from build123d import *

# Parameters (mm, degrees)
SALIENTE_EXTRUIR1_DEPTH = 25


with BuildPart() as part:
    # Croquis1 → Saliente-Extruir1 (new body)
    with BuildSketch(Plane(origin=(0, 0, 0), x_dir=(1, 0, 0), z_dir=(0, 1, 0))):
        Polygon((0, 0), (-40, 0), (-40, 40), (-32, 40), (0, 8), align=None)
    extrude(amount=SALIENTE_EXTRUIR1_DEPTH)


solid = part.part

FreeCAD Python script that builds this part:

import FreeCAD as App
import Part
import Sketcher
from FreeCAD import Vector


def add_polygon(sketch, points):
    """Adds a closed chain of lines whose ends are joined by coincident constraints."""
    first, n = sketch.GeometryCount, len(points)
    for a, b in zip(points, points[1:] + points[:1]):
        sketch.addGeometry(Part.LineSegment(App.Vector(*a, 0), App.Vector(*b, 0)), False)
    for i in range(n):
        sketch.addConstraint(Sketcher.Constraint("Coincident", first + i, 2, first + (i + 1) % n, 1))

doc = App.newDocument("Part")
body = doc.addObject("PartDesign::Body", "Body")

# Sketch on XZ plane
sketch1 = body.newObject("Sketcher::SketchObject", "Sketch")
sketch1.AttachmentSupport = (doc.getObject("XZ_Plane"), [""])
sketch1.MapMode = "FlatFace"
add_polygon(sketch1, [(-40, 0), (0, 0), (0, -8), (-32, -40), (-40, -40)])  # lines 0-4
sketch1.addConstraint([
    Sketcher.Constraint("Horizontal", 0),
    Sketcher.Constraint("Vertical", 1),
    Sketcher.Constraint("Horizontal", 3),
    Sketcher.Constraint("Vertical", 4),
    Sketcher.Constraint("Coincident", 0, 2, -1, 1),
    Sketcher.Constraint("Equal", 3, 1),
    Sketcher.Constraint("Equal", 0, 4),
    Sketcher.Constraint("DistanceX", 0, 1, 0, 2, 40.0),
    Sketcher.Constraint("DistanceX", 3, 2, 3, 1, 8.0),
])
pad1 = body.newObject("PartDesign::Pad", "Pad")
pad1.Profile = sketch1
pad1.Length = 25
pad1.Reversed = True

doc.recompute()
